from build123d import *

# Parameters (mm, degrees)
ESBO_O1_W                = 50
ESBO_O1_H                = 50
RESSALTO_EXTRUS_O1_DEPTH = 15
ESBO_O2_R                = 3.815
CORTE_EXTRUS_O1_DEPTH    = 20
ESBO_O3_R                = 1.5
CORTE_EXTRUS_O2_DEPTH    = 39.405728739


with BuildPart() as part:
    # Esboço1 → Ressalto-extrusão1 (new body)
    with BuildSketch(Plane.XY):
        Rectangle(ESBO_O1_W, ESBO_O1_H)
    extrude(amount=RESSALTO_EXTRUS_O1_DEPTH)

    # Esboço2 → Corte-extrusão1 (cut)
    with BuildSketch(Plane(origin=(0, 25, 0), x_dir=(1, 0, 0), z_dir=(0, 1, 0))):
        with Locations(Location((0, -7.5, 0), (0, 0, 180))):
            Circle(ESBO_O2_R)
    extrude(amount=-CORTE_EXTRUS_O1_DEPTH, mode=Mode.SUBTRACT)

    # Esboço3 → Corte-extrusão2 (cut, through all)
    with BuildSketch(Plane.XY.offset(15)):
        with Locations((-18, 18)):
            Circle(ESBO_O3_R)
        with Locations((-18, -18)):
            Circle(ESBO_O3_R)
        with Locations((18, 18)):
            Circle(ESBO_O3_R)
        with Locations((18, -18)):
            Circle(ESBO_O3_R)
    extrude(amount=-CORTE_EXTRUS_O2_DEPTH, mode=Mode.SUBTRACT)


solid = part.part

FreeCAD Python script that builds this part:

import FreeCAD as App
import Part
import Sketcher
from FreeCAD import Vector
Q = App.Units.Quantity

doc = App.newDocument("Part")
params = doc.addObject("Spreadsheet::Sheet", "Params")
for row, (alias, value) in enumerate([
    ("sketch1_width", "50 mm"),
    ("pad1_length", "15 mm"),
    ("sketch2_diameter", "7.63 mm"),
    ("pocket1_length", "20 mm"),
    ("sketch3_diameter", "3 mm"),
], start=1):
    params.set(f"A{row}", alias)
    params.set(f"B{row}", "=" + value)
    params.setAlias(f"B{row}", alias)

body = doc.addObject("PartDesign::Body", "Body")

# Sketch on XY plane
sketch1 = doc.addObject("Sketcher::SketchObject", "Sketch")
body.addObject(sketch1)
sketch1.AttachmentSupport = (doc.XY_Plane, [""])
sketch1.MapMode = "FlatFace"
sketch1.addGeometry(Part.LineSegment(Vector(-25, 25, 0), Vector(-25, -25, 0)), False)
sketch1.addGeometry(Part.LineSegment(Vector(-25, -25, 0), Vector(25, -25, 0)), False)
sketch1.addGeometry(Part.LineSegment(Vector(25, -25, 0), Vector(25, 25, 0)), False)
sketch1.addGeometry(Part.LineSegment(Vector(25, 25, 0), Vector(-25, 25, 0)), False)
sketch1.addConstraint(Sketcher.Constraint("Coincident", 0, 2, 1, 1))
sketch1.addConstraint(Sketcher.Constraint("Coincident", 1, 2, 2, 1))
sketch1.addConstraint(Sketcher.Constraint("Coincident", 2, 2, 3, 1))
sketch1.addConstraint(Sketcher.Constraint("Coincident", 3, 2, 0, 1))
sketch1.addConstraint(Sketcher.Constraint("Vertical", 0))
sketch1.addConstraint(Sketcher.Constraint("Horizontal", 1))
sketch1.addConstraint(Sketcher.Constraint("Vertical", 2))
sketch1.addConstraint(Sketcher.Constraint("Horizontal", 3))
sketch1.addConstraint(Sketcher.Constraint("Symmetric", 0, 2, 2, 2, -1, 1))
sketch1.addConstraint(Sketcher.Constraint("Equal", 3, 0))
sketch1.addConstraint(Sketcher.Constraint("DistanceX", 1, 1, 1, 2, Q("50 mm")))
sketch1.setExpression("Constraints[10]", "Params.sketch1_width")
pad1 = doc.addObject("PartDesign::Pad", "Pad")
body.addObject(pad1)
pad1.Profile = sketch1
pad1.setExpression("Length", "Params.pad1_length")

# Sketch on XZ plane
sketch2 = doc.addObject("Sketcher::SketchObject", "Sketch001")
body.addObject(sketch2)
sketch2.AttachmentSupport = (doc.XZ_Plane, [""])
sketch2.MapMode = "FlatFace"
sketch2.AttachmentOffset = App.Placement(Vector(0, 0, -25), App.Rotation())
sketch2.addGeometry(Part.Circle(Vector(0, 7.5, 0), Vector(0, 0, 1), 3.8), False)
sketch2.addConstraint(Sketcher.Constraint("PointOnObject", 0, 3, -2))
sketch2.addConstraint(Sketcher.Constraint("Diameter", 0, Q("7.63 mm")))
sketch2.addConstraint(Sketcher.Constraint("DistanceY", -1, 1, 0, 3, Q("7.5 mm")))
sketch2.setExpression("Constraints[1]", "Params.sketch2_diameter")
pocket1 = doc.addObject("PartDesign::Pocket", "Pocket")
body.addObject(pocket1)
pocket1.Profile = sketch2
pocket1.setExpression("Length", "Params.pocket1_length")
pocket1.Reversed = True

# Sketch on XY plane
sketch3 = doc.addObject("Sketcher::SketchObject", "Sketch002")
body.addObject(sketch3)
sketch3.AttachmentSupport = (doc.XY_Plane, [""])
sketch3.MapMode = "FlatFace"
sketch3.AttachmentOffset = App.Placement(Vector(0, 0, 15), App.Rotation())
sketch3.addGeometry(Part.Circle(Vector(-18, 18, 0), Vector(0, 0, 1), 1.5), False)
sketch3.addGeometry(Part.Circle(Vector(-18, -18, 0), Vector(0, 0, 1), 1.5), False)
sketch3.addGeometry(Part.Circle(Vector(18, 18, 0), Vector(0, 0, 1), 1.5), False)
sketch3.addGeometry(Part.Circle(Vector(18, -18, 0), Vector(0, 0, 1), 1.5), False)
sketch3.addConstraint(Sketcher.Constraint("Equal", 0, 1))
sketch3.addConstraint(Sketcher.Constraint("Equal", 1, 2))
sketch3.addConstraint(Sketcher.Constraint("Equal", 2, 3))
sketch3.addConstraint(Sketcher.Constraint("Symmetric", 1, 3, 2, 3, -1, 1))
sketch3.addConstraint(Sketcher.Constraint("Symmetric", 0, 3, 3, 3, -1, 1))
sketch3.addConstraint(Sketcher.Constraint("Symmetric", 0, 3, 2, 3, -2))
sketch3.addConstraint(Sketcher.Constraint("Diameter", 0, Q("3 mm")))
sketch3.addConstraint(Sketcher.Constraint("DistanceX", 0, 3, -1, 1, Q("18 mm")))
sketch3.addConstraint(Sketcher.Constraint("DistanceY", -1, 1, 0, 3, Q("18 mm")))
sketch3.setExpression("Constraints[6]", "Params.sketch3_diameter")
pocket2 = doc.addObject("PartDesign::Pocket", "Pocket001")
body.addObject(pocket2)
pocket2.Profile = sketch3
pocket2.Type = "ThroughAll"

doc.recompute()
